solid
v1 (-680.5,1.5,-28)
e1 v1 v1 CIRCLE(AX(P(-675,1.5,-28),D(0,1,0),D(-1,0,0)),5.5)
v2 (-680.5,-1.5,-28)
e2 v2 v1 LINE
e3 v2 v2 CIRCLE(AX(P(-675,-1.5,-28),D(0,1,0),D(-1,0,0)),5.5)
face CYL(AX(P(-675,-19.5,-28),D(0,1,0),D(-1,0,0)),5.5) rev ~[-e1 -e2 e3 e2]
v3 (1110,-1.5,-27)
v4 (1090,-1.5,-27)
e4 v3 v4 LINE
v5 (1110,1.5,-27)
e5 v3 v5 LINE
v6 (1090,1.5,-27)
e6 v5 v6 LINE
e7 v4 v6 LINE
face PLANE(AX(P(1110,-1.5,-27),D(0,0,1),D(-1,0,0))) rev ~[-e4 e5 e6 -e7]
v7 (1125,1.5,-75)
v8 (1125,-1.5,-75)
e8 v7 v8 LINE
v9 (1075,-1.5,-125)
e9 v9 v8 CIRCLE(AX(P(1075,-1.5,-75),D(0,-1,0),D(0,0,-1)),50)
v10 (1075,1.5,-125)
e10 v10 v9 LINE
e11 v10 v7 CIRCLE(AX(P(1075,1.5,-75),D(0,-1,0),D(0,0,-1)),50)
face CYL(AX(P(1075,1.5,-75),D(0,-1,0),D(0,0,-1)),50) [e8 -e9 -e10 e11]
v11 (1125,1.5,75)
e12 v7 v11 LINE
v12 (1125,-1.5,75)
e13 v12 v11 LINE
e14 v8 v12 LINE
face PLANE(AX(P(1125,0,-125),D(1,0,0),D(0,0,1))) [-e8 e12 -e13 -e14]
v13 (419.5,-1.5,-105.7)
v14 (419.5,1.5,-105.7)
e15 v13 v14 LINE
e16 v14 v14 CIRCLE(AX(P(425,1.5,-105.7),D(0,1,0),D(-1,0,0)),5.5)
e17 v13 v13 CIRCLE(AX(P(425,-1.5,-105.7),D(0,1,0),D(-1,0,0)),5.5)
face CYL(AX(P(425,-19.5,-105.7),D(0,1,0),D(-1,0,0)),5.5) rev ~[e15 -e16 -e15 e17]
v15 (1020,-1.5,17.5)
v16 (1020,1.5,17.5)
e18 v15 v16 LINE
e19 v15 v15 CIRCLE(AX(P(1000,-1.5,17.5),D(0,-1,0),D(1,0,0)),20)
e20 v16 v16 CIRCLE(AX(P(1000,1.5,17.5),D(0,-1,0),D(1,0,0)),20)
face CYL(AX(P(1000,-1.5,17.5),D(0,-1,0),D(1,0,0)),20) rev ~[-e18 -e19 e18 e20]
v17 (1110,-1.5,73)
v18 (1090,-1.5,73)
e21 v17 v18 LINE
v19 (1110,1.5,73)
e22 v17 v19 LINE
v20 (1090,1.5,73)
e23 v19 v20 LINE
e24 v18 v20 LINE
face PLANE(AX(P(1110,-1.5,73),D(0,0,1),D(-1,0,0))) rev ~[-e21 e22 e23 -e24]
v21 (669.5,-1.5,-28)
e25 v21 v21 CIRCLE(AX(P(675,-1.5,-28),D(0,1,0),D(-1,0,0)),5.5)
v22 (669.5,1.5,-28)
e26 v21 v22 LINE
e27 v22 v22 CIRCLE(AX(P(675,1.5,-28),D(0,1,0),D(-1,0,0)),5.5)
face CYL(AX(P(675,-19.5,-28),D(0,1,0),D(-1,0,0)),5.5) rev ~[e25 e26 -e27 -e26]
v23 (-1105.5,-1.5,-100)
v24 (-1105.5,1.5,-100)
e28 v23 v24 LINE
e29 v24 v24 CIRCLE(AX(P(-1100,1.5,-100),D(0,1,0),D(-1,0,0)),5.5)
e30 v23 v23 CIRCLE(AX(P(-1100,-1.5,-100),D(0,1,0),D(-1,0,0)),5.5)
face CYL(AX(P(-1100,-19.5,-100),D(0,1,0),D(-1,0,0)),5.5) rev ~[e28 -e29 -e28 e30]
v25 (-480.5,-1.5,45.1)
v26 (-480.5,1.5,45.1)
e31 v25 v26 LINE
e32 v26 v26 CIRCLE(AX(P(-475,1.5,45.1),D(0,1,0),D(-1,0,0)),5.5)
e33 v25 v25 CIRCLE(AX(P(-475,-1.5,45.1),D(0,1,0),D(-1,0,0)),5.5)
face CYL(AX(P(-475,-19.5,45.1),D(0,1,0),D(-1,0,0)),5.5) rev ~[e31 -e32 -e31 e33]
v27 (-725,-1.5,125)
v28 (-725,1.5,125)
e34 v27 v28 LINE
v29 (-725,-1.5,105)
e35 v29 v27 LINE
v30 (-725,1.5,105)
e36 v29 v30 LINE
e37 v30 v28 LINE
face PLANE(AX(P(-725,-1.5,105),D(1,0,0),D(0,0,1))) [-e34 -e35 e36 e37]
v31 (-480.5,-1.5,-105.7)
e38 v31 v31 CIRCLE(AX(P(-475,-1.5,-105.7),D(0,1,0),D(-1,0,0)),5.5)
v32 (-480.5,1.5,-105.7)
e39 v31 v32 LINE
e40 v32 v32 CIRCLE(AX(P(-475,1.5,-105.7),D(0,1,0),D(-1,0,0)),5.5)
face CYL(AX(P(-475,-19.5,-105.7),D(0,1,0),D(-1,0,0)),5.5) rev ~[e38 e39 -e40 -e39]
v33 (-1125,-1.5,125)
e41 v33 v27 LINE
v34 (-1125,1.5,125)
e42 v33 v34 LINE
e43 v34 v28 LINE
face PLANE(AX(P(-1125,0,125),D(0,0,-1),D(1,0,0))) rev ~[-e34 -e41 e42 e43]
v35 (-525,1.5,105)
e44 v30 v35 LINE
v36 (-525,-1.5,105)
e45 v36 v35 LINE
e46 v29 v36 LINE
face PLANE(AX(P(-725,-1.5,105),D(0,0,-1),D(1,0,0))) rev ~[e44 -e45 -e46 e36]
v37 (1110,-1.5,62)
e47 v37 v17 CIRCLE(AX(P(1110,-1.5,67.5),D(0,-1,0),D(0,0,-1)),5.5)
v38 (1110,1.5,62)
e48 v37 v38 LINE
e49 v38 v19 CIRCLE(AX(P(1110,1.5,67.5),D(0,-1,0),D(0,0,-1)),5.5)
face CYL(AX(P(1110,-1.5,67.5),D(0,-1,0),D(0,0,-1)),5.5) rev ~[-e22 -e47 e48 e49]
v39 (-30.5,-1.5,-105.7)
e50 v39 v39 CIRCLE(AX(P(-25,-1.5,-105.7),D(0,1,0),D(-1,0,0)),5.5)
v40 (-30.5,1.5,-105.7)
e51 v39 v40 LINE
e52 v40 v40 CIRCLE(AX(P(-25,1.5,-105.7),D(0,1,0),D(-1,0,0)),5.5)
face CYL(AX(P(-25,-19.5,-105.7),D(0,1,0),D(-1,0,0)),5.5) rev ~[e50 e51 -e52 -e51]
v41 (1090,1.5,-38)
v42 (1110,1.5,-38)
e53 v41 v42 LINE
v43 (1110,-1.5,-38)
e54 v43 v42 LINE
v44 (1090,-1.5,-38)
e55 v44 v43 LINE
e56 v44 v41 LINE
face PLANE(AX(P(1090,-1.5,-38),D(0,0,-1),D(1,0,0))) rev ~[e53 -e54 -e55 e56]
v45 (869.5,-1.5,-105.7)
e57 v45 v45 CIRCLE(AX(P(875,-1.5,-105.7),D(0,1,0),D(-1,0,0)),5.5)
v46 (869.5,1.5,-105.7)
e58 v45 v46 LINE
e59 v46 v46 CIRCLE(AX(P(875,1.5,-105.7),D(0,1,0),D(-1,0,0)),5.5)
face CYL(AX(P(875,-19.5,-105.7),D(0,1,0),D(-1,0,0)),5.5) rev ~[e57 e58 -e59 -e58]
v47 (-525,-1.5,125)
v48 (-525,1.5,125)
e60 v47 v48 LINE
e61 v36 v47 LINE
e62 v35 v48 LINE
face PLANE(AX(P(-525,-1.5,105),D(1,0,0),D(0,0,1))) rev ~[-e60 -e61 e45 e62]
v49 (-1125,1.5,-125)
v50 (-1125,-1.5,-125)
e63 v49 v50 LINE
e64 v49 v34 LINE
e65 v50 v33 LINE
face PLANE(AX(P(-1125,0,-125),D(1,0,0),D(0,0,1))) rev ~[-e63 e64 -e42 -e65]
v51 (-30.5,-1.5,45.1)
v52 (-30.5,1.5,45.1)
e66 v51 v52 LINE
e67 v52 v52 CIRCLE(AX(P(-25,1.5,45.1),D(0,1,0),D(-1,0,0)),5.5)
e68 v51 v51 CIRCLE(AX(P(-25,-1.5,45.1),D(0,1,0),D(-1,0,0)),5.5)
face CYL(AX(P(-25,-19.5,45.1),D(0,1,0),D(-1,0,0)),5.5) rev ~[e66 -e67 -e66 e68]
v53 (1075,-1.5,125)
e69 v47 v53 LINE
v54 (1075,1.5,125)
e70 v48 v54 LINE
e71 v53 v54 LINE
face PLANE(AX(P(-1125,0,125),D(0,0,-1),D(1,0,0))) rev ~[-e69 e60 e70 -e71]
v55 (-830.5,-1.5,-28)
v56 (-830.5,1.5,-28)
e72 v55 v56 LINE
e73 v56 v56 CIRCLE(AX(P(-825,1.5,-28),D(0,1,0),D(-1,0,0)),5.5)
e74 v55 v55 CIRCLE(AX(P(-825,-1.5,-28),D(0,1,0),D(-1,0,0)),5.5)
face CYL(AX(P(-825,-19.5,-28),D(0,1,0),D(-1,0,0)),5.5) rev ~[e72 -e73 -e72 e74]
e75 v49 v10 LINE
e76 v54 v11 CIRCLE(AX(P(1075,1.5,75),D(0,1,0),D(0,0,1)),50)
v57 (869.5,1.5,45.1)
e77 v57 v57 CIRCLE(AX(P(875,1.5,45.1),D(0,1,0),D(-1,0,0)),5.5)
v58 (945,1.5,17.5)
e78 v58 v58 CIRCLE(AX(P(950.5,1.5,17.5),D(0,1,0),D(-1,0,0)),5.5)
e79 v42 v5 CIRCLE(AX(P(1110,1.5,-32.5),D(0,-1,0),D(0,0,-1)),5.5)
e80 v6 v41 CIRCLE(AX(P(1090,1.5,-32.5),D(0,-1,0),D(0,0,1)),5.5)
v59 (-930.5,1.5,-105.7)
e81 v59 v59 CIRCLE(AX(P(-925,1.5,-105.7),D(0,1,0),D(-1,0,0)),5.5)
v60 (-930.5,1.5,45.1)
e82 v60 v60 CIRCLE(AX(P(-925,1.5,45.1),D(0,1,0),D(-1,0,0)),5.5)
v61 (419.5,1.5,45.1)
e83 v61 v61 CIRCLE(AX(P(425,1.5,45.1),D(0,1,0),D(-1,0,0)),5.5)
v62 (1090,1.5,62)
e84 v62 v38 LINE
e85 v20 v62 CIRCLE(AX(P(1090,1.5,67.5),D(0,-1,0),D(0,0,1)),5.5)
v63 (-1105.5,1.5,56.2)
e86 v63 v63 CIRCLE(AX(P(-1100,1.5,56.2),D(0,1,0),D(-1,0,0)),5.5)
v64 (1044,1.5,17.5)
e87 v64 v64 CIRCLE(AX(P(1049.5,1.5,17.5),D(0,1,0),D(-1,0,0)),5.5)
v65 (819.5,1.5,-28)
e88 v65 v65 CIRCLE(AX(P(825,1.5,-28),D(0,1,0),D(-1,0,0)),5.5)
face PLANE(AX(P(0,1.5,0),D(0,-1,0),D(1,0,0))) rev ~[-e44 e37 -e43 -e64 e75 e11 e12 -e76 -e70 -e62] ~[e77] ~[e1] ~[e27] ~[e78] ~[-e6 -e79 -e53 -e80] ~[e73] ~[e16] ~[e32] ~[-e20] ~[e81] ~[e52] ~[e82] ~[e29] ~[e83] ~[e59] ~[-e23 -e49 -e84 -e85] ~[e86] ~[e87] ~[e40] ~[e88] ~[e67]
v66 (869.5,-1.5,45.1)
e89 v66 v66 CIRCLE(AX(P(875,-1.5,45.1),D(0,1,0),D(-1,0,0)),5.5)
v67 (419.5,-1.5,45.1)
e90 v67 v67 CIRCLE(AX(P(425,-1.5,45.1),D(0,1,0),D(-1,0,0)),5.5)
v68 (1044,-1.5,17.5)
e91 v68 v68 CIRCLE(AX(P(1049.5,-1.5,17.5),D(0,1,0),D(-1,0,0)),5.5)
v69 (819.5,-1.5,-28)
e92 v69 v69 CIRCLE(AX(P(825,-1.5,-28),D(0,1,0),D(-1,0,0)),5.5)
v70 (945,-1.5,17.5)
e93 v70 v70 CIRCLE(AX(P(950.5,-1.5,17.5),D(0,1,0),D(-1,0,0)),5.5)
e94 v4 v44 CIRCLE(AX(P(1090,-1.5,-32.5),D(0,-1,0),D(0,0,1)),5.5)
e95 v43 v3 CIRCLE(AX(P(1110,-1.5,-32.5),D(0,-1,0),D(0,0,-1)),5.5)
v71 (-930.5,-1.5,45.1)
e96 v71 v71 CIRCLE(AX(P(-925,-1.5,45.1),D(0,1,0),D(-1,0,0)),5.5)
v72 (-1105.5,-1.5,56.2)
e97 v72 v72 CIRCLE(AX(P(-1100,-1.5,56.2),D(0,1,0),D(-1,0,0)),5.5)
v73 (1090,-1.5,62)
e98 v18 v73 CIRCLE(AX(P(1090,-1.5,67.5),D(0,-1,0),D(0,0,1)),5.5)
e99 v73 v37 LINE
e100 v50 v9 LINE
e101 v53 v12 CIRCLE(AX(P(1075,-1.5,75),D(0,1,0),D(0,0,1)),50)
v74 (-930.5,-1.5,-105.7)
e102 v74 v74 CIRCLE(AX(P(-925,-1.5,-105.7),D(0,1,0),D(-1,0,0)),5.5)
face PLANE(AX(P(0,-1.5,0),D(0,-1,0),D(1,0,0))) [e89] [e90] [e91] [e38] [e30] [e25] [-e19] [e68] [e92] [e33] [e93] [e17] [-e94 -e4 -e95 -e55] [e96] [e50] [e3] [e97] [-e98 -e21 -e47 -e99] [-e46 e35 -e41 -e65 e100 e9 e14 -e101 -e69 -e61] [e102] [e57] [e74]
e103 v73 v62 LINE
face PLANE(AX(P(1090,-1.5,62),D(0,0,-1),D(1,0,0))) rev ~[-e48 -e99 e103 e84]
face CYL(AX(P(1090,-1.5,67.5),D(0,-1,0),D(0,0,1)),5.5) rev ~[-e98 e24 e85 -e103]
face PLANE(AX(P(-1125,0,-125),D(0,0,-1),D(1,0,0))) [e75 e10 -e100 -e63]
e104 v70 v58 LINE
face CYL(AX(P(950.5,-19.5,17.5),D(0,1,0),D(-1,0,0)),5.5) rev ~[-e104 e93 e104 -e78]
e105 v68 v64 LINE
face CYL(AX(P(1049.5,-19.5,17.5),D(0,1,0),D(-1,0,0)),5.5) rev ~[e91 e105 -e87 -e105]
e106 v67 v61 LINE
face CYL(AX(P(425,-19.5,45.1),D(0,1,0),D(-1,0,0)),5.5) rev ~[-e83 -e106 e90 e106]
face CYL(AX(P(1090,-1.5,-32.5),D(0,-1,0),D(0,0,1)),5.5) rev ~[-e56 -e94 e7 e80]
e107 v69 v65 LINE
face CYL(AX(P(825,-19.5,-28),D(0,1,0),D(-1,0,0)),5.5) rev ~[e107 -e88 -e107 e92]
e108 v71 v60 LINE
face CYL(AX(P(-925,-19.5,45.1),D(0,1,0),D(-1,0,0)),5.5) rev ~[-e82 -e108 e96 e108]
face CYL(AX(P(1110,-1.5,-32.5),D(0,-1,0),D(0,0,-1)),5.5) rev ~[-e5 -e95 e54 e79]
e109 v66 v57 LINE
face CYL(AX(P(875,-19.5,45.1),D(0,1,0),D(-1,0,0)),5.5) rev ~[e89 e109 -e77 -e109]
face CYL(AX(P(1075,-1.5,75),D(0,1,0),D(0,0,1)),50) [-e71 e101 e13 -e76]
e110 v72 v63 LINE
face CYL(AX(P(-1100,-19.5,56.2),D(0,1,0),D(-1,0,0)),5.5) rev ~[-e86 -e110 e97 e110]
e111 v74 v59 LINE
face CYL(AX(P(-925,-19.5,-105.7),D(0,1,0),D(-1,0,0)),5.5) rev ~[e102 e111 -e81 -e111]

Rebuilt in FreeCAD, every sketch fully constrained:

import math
import FreeCAD as App
import Part
import Sketcher
from FreeCAD import Vector
Q = App.Units.Quantity


def edges_at(feature, points):
    """Names of the edges that pass closest to the given points."""
    edges = feature.Shape.Edges
    near = lambda p: min(range(len(edges)), key=lambda i: edges[i].distToShape(Part.Vertex(*p))[0])
    return sorted({f"Edge{near(p) + 1}" for p in points})


def add_polygon(sketch, points):
    """Adds a closed chain of lines whose ends are joined by coincident constraints."""
    first, n = sketch.GeometryCount, len(points)
    for a, b in zip(points, points[1:] + points[:1]):
        sketch.addGeometry(Part.LineSegment(App.Vector(*a, 0), App.Vector(*b, 0)), False)
    for i in range(n):
        sketch.addConstraint(Sketcher.Constraint("Coincident", first + i, 2, first + (i + 1) % n, 1))

doc = App.newDocument("Part")
body = doc.addObject("PartDesign::Body", "Body")

# Sketch on XZ plane
sketch1 = body.newObject("Sketcher::SketchObject", "Sketch")
sketch1.AttachmentSupport = (doc.getObject("XZ_Plane"), [""])
sketch1.MapMode = "FlatFace"
add_polygon(sketch1, [(-1125, 125), (-1125, -125), (1125, -125), (1125, 125)])  # lines 0-3
sketch1.addConstraint([
    Sketcher.Constraint("Vertical", 0),
    Sketcher.Constraint("Horizontal", 1),
    Sketcher.Constraint("Vertical", 2),
    Sketcher.Constraint("Horizontal", 3),
    Sketcher.Constraint("Symmetric", 0, 2, 2, 2, -1, 1),
    Sketcher.Constraint("DistanceX", 1, 1, 1, 2, Q("2250 mm")),
    Sketcher.Constraint("DistanceY", 0, 2, 0, 1, Q("250 mm")),
])
pad1 = body.newObject("PartDesign::Pad", "Pad")
pad1.Profile = sketch1
pad1.Length = 3
pad1.Midplane = True

# Sketch on XZ plane
sketch2 = body.newObject("Sketcher::SketchObject", "Sketch001")
sketch2.AttachmentSupport = (doc.getObject("XZ_Plane"), [""])
sketch2.MapMode = "FlatFace"
sketch2.AttachmentOffset = App.Placement(Vector(0, 0, 1.5), App.Rotation())
sketch2.addGeometry([
    Part.Circle(Vector(-1100, 56.2, 0), Vector(0, 0, 1), 5.5),  # 0
    Part.Circle(Vector(-1100, -100, 0), Vector(0, 0, 1), 5.5),  # 1
    Part.Circle(Vector(-925, -105.7, 0), Vector(0, 0, 1), 5.5),  # 2
    Part.Circle(Vector(-925, 45.1, 0), Vector(0, 0, 1), 5.5),  # 3
    Part.Circle(Vector(675, -28, 0), Vector(0, 0, 1), 5.5),  # 4
    Part.Circle(Vector(825, -28, 0), Vector(0, 0, 1), 5.5),  # 5
    Part.Circle(Vector(875, -105.7, 0), Vector(0, 0, 1), 5.5),  # 6
    Part.Circle(Vector(875, 45.1, 0), Vector(0, 0, 1), 5.5),  # 7
    Part.Circle(Vector(-475, 45.1, 0), Vector(0, 0, 1), 5.5),  # 8
    Part.Circle(Vector(-475, -105.7, 0), Vector(0, 0, 1), 5.5),  # 9
    Part.Circle(Vector(-25, -105.7, 0), Vector(0, 0, 1), 5.5),  # 10
    Part.Circle(Vector(-25, 45.1, 0), Vector(0, 0, 1), 5.5),  # 11
    Part.Circle(Vector(425, 45.1, 0), Vector(0, 0, 1), 5.5),  # 12
    Part.Circle(Vector(425, -105.7, 0), Vector(0, 0, 1), 5.5),  # 13
    Part.Circle(Vector(-825, -28, 0), Vector(0, 0, 1), 5.5),  # 14
    Part.Circle(Vector(-675, -28, 0), Vector(0, 0, 1), 5.5),  # 15
], False)
sketch2.addConstraint([
    Sketcher.Constraint("Equal", 0, 1),
    Sketcher.Constraint("Equal", 1, 2),
    Sketcher.Constraint("Equal", 2, 3),
    Sketcher.Constraint("Equal", 3, 4),
    Sketcher.Constraint("Equal", 4, 5),
    Sketcher.Constraint("Equal", 5, 6),
    Sketcher.Constraint("Equal", 6, 7),
    Sketcher.Constraint("Equal", 7, 8),
    Sketcher.Constraint("Equal", 8, 9),
    Sketcher.Constraint("Equal", 9, 10),
    Sketcher.Constraint("Equal", 10, 11),
    Sketcher.Constraint("Equal", 11, 12),
    Sketcher.Constraint("Equal", 12, 13),
    Sketcher.Constraint("Equal", 13, 14),
    Sketcher.Constraint("Equal", 14, 15),
    Sketcher.Constraint("Symmetric", 5, 3, 14, 3, -2),
    Sketcher.Constraint("Symmetric", 4, 3, 15, 3, -2),
    Sketcher.Constraint("Horizontal", 4, 3, 5, 3),
    Sketcher.Constraint("Horizontal", 2, 3, 6, 3),
    Sketcher.Constraint("Horizontal", 3, 3, 7, 3),
    Sketcher.Constraint("Horizontal", 7, 3, 8, 3),
    Sketcher.Constraint("Horizontal", 6, 3, 9, 3),
    Sketcher.Constraint("Horizontal", 9, 3, 10, 3),
    Sketcher.Constraint("Horizontal", 8, 3, 11, 3),
    Sketcher.Constraint("Horizontal", 11, 3, 12, 3),
    Sketcher.Constraint("Horizontal", 10, 3, 13, 3),
    Sketcher.Constraint("Vertical", 0, 3, 1, 3),
    Sketcher.Constraint("Vertical", 2, 3, 3, 3),
    Sketcher.Constraint("Vertical", 6, 3, 7, 3),
    Sketcher.Constraint("Vertical", 8, 3, 9, 3),
    Sketcher.Constraint("Vertical", 10, 3, 11, 3),
    Sketcher.Constraint("Vertical", 12, 3, 13, 3),
    Sketcher.Constraint("Diameter", 0, Q("11 mm")),
    Sketcher.Constraint("DistanceX", 0, 3, -1, 1, Q("1100 mm")),
    Sketcher.Constraint("DistanceY", 1, 3, -1, 1, Q("100 mm")),
    Sketcher.Constraint("DistanceX", 2, 3, -1, 1, Q("925 mm")),
    Sketcher.Constraint("DistanceX", -1, 1, 4, 3, Q("675 mm")),
    Sketcher.Constraint("DistanceY", 4, 3, -1, 1, Q("28 mm")),
    Sketcher.Constraint("DistanceX", -1, 1, 5, 3, Q("825 mm")),
    Sketcher.Constraint("DistanceX", -1, 1, 6, 3, Q("875 mm")),
    Sketcher.Constraint("DistanceX", 8, 3, -1, 1, Q("475 mm")),
    Sketcher.Constraint("DistanceX", 10, 3, -1, 1, Q("25 mm")),
    Sketcher.Constraint("DistanceX", -1, 1, 12, 3, Q("425 mm")),
    Sketcher.Constraint("DistanceY", -1, 1, 0, 3, Q("56.2 mm")),
    Sketcher.Constraint("DistanceY", 2, 3, -1, 1, Q("105.7 mm")),
    Sketcher.Constraint("DistanceY", -1, 1, 3, 3, Q("45.1 mm")),
])
doc.recompute()
hole = body.newObject("PartDesign::Hole", "Hole")
hole.Profile = sketch2
hole.ThreadType = "None"
hole.Diameter = 11
hole.DepthType = "Dimension"
hole.Depth = 18
hole.DrillPoint = "Angled"
hole.DrillPointAngle = 118

# Sketch on XZ plane
sketch3 = body.newObject("Sketcher::SketchObject", "Sketch002")
sketch3.AttachmentSupport = (doc.getObject("XZ_Plane"), [""])
sketch3.MapMode = "FlatFace"
sketch3.AttachmentOffset = App.Placement(Vector(0, 0, 1.5), App.Rotation())
sketch3.addGeometry([
    Part.ArcOfCircle(Part.Circle(Vector(1110, 67.5, 0), Vector(0, 0, 1), 5.5), math.radians(-90), math.radians(90)),  # 0
    Part.LineSegment(Vector(1110, 73, 0), Vector(1090, 73, 0)),  # 1
    Part.ArcOfCircle(Part.Circle(Vector(1090, 67.5, 0), Vector(0, 0, 1), 5.5), math.radians(90), math.radians(270)),  # 2
    Part.LineSegment(Vector(1090, 62, 0), Vector(1110, 62, 0)),  # 3
    Part.ArcOfCircle(Part.Circle(Vector(1110, -32.5, 0), Vector(0, 0, 1), 5.5), math.radians(-90), math.radians(90)),  # 4
    Part.LineSegment(Vector(1110, -27, 0), Vector(1090, -27, 0)),  # 5
    Part.ArcOfCircle(Part.Circle(Vector(1090, -32.5, 0), Vector(0, 0, 1), 5.5), math.radians(90), math.radians(270)),  # 6
    Part.LineSegment(Vector(1090, -38, 0), Vector(1110, -38, 0)),  # 7
], False)
sketch3.addConstraint([
    Sketcher.Constraint("Tangent", 0, 2, 1, 1),
    Sketcher.Constraint("Tangent", 1, 2, 2, 1),
    Sketcher.Constraint("Tangent", 2, 2, 3, 1),
    Sketcher.Constraint("Tangent", 3, 2, 0, 1),
    Sketcher.Constraint("Tangent", 4, 2, 5, 1),
    Sketcher.Constraint("Tangent", 5, 2, 6, 1),
    Sketcher.Constraint("Tangent", 6, 2, 7, 1),
    Sketcher.Constraint("Tangent", 7, 2, 4, 1),
    Sketcher.Constraint("Horizontal", 1),
    Sketcher.Constraint("Horizontal", 3),
    Sketcher.Constraint("Horizontal", 5),
    Sketcher.Constraint("Horizontal", 7),
    Sketcher.Constraint("Equal", 2, 4),
    Sketcher.Constraint("Vertical", 0, 3, 4, 3),
    Sketcher.Constraint("Vertical", 2, 3, 6, 3),
    Sketcher.Constraint("Radius", 0, Q("5.5 mm")),
    Sketcher.Constraint("DistanceX", 1, 2, 1, 1, Q("20 mm")),
    Sketcher.Constraint("DistanceX", -1, 1, 0, 3, Q("1110 mm")),
    Sketcher.Constraint("DistanceY", -1, 1, 0, 2, Q("73 mm")),
    Sketcher.Constraint("DistanceY", 4, 2, -1, 1, Q("27 mm")),
])
pocket1 = body.newObject("PartDesign::Pocket", "Pocket")
pocket1.Profile = sketch3
pocket1.Type = "ThroughAll"

# Sketch on XZ plane
sketch4 = body.newObject("Sketcher::SketchObject", "Sketch003")
sketch4.AttachmentSupport = (doc.getObject("XZ_Plane"), [""])
sketch4.MapMode = "FlatFace"
sketch4.AttachmentOffset = App.Placement(Vector(0, 0, 1.5), App.Rotation())
sketch4.addGeometry(Part.Circle(Vector(1000, 17.5, 0), Vector(0, 0, 1), 20), False)
sketch4.addConstraint([
    Sketcher.Constraint("Diameter", 0, Q("40 mm")),
    Sketcher.Constraint("DistanceX", -1, 1, 0, 3, Q("1000 mm")),
    Sketcher.Constraint("DistanceY", -1, 1, 0, 3, Q("17.5 mm")),
])
pocket2 = body.newObject("PartDesign::Pocket", "Pocket001")
pocket2.Profile = sketch4
pocket2.Type = "ThroughAll"

# Sketch on XZ plane
sketch5 = body.newObject("Sketcher::SketchObject", "Sketch004")
sketch5.AttachmentSupport = (doc.getObject("XZ_Plane"), [""])
sketch5.MapMode = "FlatFace"
sketch5.AttachmentOffset = App.Placement(Vector(0, 0, 1.5), App.Rotation())
sketch5.addGeometry([
    Part.Circle(Vector(950.5, 17.5, 0), Vector(0, 0, 1), 5.5),
    Part.Circle(Vector(1049.5, 17.5, 0), Vector(0, 0, 1), 5.5),
], False)
sketch5.addConstraint([
    Sketcher.Constraint("Equal", 0, 1),
    Sketcher.Constraint("Horizontal", 0, 3, 1, 3),
    Sketcher.Constraint("Diameter", 0, Q("11 mm")),
    Sketcher.Constraint("DistanceX", 0, 3, 1, 3, Q("99 mm")),
    Sketcher.Constraint("DistanceX", -1, 1, 0, 3, Q("950.5 mm")),
    Sketcher.Constraint("DistanceY", -1, 1, 0, 3, Q("17.5 mm")),
])
doc.recompute()
hole2 = body.newObject("PartDesign::Hole", "Hole001")
hole2.Profile = sketch5
hole2.ThreadType = "None"
hole2.Diameter = 11
hole2.DepthType = "Dimension"
hole2.Depth = 18
hole2.DrillPoint = "Angled"
hole2.DrillPointAngle = 118
doc.recompute()

fillet = body.newObject("PartDesign::Fillet", "Fillet")
fillet.Base = (hole2, edges_at(hole2, [(1125, 0, 125), (1125, 0, -125)]))
fillet.Radius = 50

# Sketch on XZ plane
sketch6 = body.newObject("Sketcher::SketchObject", "Sketch005")
sketch6.AttachmentSupport = (doc.getObject("XZ_Plane"), [""])
sketch6.MapMode = "FlatFace"
sketch6.AttachmentOffset = App.Placement(Vector(0, 0, 1.5), App.Rotation())
add_polygon(sketch6, [(-725, 125), (-725, 105), (-525, 105), (-525, 125)])  # lines 0-3
sketch6.addConstraint([
    Sketcher.Constraint("Vertical", 0),
    Sketcher.Constraint("Horizontal", 1),
    Sketcher.Constraint("Vertical", 2),
    Sketcher.Constraint("Horizontal", 3),
    Sketcher.Constraint("DistanceX", 1, 1, 1, 2, Q("200 mm")),
    Sketcher.Constraint("DistanceY", 0, 2, 0, 1, Q("20 mm")),
    Sketcher.Constraint("DistanceX", 0, 2, -1, 1, Q("725 mm")),
    Sketcher.Constraint("DistanceY", -1, 1, 0, 2, Q("105 mm")),
])
pocket3 = body.newObject("PartDesign::Pocket", "Pocket002")
pocket3.Profile = sketch6
pocket3.Type = "ThroughAll"

doc.recompute()
